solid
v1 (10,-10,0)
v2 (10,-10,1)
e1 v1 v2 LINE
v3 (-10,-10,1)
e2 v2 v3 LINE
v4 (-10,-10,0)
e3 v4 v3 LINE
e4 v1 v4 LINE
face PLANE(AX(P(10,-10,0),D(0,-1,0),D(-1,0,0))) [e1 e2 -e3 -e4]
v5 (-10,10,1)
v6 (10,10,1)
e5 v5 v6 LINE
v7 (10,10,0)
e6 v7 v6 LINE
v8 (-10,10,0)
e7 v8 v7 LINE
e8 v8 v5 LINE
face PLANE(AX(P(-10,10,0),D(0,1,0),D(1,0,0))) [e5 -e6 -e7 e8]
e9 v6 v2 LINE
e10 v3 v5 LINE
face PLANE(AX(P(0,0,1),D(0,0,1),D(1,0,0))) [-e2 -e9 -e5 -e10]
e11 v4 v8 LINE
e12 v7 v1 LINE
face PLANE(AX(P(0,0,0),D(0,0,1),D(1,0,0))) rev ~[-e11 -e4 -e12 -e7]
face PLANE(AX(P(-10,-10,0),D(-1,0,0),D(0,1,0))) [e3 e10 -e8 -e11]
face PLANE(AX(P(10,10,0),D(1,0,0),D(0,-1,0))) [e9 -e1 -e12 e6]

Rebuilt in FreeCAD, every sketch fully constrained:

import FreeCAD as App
import Part
import Sketcher
Q = App.Units.Quantity

doc = App.newDocument("Part")
body = doc.addObject("PartDesign::Body", "Body")

# Sketch on XY plane
sketch1 = doc.addObject("Sketcher::SketchObject", "Sketch")
body.addObject(sketch1)
sketch1.AttachmentSupport = (doc.XY_Plane, [""])
sketch1.MapMode = "FlatFace"
sketch1.addGeometry(Part.LineSegment(App.Vector(-10, -10, 0), App.Vector(10, -10, 0)), False)
sketch1.addGeometry(Part.LineSegment(App.Vector(10, -10, 0), App.Vector(10, 10, 0)), False)
sketch1.addGeometry(Part.LineSegment(App.Vector(10, 10, 0), App.Vector(-10, 10, 0)), False)
sketch1.addGeometry(Part.LineSegment(App.Vector(-10, 10, 0), App.Vector(-10, -10, 0)), False)
sketch1.addConstraint(Sketcher.Constraint("Coincident", 0, 2, 1, 1))
sketch1.addConstraint(Sketcher.Constraint("Coincident", 1, 2, 2, 1))
sketch1.addConstraint(Sketcher.Constraint("Coincident", 2, 2, 3, 1))
sketch1.addConstraint(Sketcher.Constraint("Coincident", 3, 2, 0, 1))
sketch1.addConstraint(Sketcher.Constraint("Horizontal", 0))
sketch1.addConstraint(Sketcher.Constraint("Vertical", 1))
sketch1.addConstraint(Sketcher.Constraint("Horizontal", 2))
sketch1.addConstraint(Sketcher.Constraint("Vertical", 3))
sketch1.addConstraint(Sketcher.Constraint("Symmetric", 0, 2, 2, 2, -1, 1))
sketch1.addConstraint(Sketcher.Constraint("Equal", 2, 1))
sketch1.addConstraint(Sketcher.Constraint("DistanceX", 0, 1, 0, 2, Q("20 mm")))
pad1 = doc.addObject("PartDesign::Pad", "Pad")
body.addObject(pad1)
pad1.Profile = sketch1
pad1.Length = 1

doc.recompute()
